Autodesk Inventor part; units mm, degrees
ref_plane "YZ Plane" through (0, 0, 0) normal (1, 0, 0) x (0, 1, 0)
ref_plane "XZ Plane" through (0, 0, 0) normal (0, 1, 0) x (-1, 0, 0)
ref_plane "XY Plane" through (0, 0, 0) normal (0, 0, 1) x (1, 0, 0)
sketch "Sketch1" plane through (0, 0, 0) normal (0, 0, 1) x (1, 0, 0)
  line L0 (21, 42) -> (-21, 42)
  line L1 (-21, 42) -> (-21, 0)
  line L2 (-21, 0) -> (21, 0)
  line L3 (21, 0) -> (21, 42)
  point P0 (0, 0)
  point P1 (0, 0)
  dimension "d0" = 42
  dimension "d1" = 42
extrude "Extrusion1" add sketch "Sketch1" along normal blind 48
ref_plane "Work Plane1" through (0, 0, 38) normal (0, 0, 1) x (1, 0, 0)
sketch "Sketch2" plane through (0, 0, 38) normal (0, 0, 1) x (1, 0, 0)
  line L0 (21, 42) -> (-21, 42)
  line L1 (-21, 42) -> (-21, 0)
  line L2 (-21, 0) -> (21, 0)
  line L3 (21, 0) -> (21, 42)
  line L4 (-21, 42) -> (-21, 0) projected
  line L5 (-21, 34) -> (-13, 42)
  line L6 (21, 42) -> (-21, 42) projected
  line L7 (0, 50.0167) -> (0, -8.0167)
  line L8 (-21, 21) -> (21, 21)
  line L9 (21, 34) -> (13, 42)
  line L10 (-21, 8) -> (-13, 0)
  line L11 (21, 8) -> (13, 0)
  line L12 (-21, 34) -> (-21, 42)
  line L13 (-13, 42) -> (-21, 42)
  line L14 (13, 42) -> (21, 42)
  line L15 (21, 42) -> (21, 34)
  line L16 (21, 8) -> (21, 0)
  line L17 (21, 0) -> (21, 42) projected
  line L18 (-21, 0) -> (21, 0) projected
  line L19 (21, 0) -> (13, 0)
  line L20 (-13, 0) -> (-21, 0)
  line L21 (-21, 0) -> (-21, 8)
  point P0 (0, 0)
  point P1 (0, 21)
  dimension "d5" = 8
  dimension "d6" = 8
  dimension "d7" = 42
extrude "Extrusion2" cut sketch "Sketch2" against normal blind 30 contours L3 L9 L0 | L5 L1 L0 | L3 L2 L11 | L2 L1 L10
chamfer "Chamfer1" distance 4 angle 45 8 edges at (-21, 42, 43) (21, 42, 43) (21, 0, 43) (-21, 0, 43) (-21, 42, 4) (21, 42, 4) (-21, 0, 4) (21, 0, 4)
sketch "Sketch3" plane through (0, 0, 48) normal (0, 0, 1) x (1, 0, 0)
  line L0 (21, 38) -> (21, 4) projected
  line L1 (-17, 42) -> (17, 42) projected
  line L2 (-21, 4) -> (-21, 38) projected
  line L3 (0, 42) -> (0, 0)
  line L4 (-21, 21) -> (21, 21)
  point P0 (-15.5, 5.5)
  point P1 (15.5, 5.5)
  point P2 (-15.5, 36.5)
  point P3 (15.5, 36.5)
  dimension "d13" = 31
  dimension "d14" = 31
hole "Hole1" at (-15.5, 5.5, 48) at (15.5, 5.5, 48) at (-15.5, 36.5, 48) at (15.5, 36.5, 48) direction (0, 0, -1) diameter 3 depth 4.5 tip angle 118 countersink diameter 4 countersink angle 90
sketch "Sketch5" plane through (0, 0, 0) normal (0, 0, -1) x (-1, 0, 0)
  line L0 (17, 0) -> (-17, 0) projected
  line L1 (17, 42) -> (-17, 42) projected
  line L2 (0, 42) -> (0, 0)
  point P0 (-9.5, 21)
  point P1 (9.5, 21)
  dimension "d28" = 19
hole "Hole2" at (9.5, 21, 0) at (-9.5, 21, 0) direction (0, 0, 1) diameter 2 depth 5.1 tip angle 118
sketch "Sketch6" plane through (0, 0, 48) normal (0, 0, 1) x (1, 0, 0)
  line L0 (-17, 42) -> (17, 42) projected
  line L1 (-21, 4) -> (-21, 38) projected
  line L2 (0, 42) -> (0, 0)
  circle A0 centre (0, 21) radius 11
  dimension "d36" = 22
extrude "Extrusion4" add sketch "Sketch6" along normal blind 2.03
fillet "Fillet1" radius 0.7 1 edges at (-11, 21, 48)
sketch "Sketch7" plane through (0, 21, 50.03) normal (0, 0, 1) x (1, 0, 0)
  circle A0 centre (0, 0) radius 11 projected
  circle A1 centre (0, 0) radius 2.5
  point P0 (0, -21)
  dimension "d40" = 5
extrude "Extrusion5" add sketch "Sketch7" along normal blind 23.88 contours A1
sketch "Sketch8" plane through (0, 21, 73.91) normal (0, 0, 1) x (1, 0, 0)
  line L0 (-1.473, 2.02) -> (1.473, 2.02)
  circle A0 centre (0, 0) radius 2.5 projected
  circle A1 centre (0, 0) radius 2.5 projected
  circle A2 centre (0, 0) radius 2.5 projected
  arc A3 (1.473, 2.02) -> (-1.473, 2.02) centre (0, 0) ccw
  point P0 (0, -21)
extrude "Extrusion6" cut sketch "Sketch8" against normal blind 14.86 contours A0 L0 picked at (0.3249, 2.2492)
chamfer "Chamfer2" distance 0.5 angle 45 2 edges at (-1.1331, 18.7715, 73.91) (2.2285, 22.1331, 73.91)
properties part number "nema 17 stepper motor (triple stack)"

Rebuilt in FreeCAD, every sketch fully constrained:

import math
import FreeCAD as App
import Part
import Sketcher


def edges_at(feature, points):
    """Names of the edges that pass closest to the given points."""
    edges = feature.Shape.Edges
    near = lambda p: min(range(len(edges)), key=lambda i: edges[i].distToShape(Part.Vertex(*p))[0])
    return sorted({f"Edge{near(p) + 1}" for p in points})

doc = App.newDocument("Part")
body = doc.addObject("PartDesign::Body", "Body")

sketch1 = doc.addObject("Sketcher::SketchObject", "Sketch")
body.addObject(sketch1)
sketch1.AttachmentSupport = (doc.XY_Plane, [""])
sketch1.MapMode = "FlatFace"
sketch1.addGeometry([
    Part.LineSegment(App.Vector(21, 0, 0), App.Vector(21, 42, 0)),
    Part.LineSegment(App.Vector(21, 42, 0), App.Vector(-21, 42, 0)),
    Part.LineSegment(App.Vector(-21, 42, 0), App.Vector(-21, 0, 0)),
    Part.LineSegment(App.Vector(-21, 0, 0), App.Vector(21, 0, 0)),
], False)
sketch1.addConstraint([
    Sketcher.Constraint("Coincident", 0, 2, 1, 1),
    Sketcher.Constraint("Coincident", 1, 2, 2, 1),
    Sketcher.Constraint("Coincident", 2, 2, 3, 1),
    Sketcher.Constraint("Coincident", 3, 2, 0, 1),
    Sketcher.Constraint("Vertical", 0),
    Sketcher.Constraint("Horizontal", 1),
    Sketcher.Constraint("Vertical", 2),
    Sketcher.Constraint("Horizontal", 3),
    Sketcher.Constraint("Symmetric", 2, 2, 3, 2, -1, 1),
    Sketcher.Constraint("Equal", 3, 0),
    Sketcher.Constraint("DistanceX", 1, 2, 1, 1, 42.0),
])
pad1 = doc.addObject("PartDesign::Pad", "Pad")
body.addObject(pad1)
pad1.Profile = sketch1
pad1.Length = 48

sketch2 = doc.addObject("Sketcher::SketchObject", "Sketch001")
body.addObject(sketch2)
sketch2.AttachmentSupport = (doc.XY_Plane, [""])
sketch2.MapMode = "FlatFace"
sketch2.AttachmentOffset = App.Placement(App.Vector(0, 0, 38), App.Rotation())
sketch2.addGeometry([
    Part.LineSegment(App.Vector(21, 34, 0), App.Vector(21, 42, 0)),
    Part.LineSegment(App.Vector(21, 42, 0), App.Vector(13, 42, 0)),
    Part.LineSegment(App.Vector(13, 42, 0), App.Vector(21, 34, 0)),
    Part.LineSegment(App.Vector(-21, 34, 0), App.Vector(-13, 42, 0)),
    Part.LineSegment(App.Vector(-13, 42, 0), App.Vector(-21, 42, 0)),
    Part.LineSegment(App.Vector(-21, 42, 0), App.Vector(-21, 34, 0)),
    Part.LineSegment(App.Vector(21, 0, 0), App.Vector(21, 8, 0)),
    Part.LineSegment(App.Vector(21, 8, 0), App.Vector(13, 0, 0)),
    Part.LineSegment(App.Vector(13, 0, 0), App.Vector(21, 0, 0)),
    Part.LineSegment(App.Vector(-21, 0, 0), App.Vector(-13, 0, 0)),
    Part.LineSegment(App.Vector(-13, 0, 0), App.Vector(-21, 8, 0)),
    Part.LineSegment(App.Vector(-21, 8, 0), App.Vector(-21, 0, 0)),
], False)
sketch2.addConstraint([
    Sketcher.Constraint("Coincident", 0, 2, 1, 1),
    Sketcher.Constraint("Coincident", 1, 2, 2, 1),
    Sketcher.Constraint("Coincident", 2, 2, 0, 1),
    Sketcher.Constraint("Coincident", 3, 2, 4, 1),
    Sketcher.Constraint("Coincident", 4, 2, 5, 1),
    Sketcher.Constraint("Coincident", 5, 2, 3, 1),
    Sketcher.Constraint("Coincident", 6, 2, 7, 1),
    Sketcher.Constraint("Coincident", 7, 2, 8, 1),
    Sketcher.Constraint("Coincident", 8, 2, 6, 1),
    Sketcher.Constraint("Coincident", 9, 2, 10, 1),
    Sketcher.Constraint("Coincident", 10, 2, 11, 1),
    Sketcher.Constraint("Coincident", 11, 2, 9, 1),
    Sketcher.Constraint("Vertical", 0),
    Sketcher.Constraint("Horizontal", 1),
    Sketcher.Constraint("Horizontal", 4),
    Sketcher.Constraint("Vertical", 5),
    Sketcher.Constraint("Vertical", 6),
    Sketcher.Constraint("Horizontal", 8),
    Sketcher.Constraint("Horizontal", 9),
    Sketcher.Constraint("Vertical", 11),
    Sketcher.Constraint("Symmetric", 7, 2, 9, 2, -1, 1),
    Sketcher.Constraint("Symmetric", 1, 2, 3, 2, -2),
    Sketcher.Constraint("Symmetric", 2, 2, 5, 2, -2),
    Sketcher.Constraint("Symmetric", 6, 2, 10, 2, -2),
    Sketcher.Constraint("PointOnObject", 7, 2, -1),
    Sketcher.Constraint("Perpendicular", 2, 3),
    Sketcher.Constraint("Parallel", 3, 7),
    Sketcher.Constraint("Vertical", 2, 2, 6, 2),
    Sketcher.Constraint("Vertical", 1, 2, 7, 2),
    Sketcher.Constraint("DistanceX", 1, 2, 1, 1, 8.0),
    Sketcher.Constraint("DistanceY", -1, 1, 0, 2, 42.0),
    Sketcher.Constraint("DistanceX", 4, 2, 0, 2, 42.0),
])
pocket1 = doc.addObject("PartDesign::Pocket", "Pocket")
body.addObject(pocket1)
pocket1.Profile = sketch2
pocket1.Length = 30
doc.recompute()

chamfer = doc.addObject("PartDesign::Chamfer", "Chamfer")
body.addObject(chamfer)
chamfer.Base = (pocket1, edges_at(pocket1, [
    (-21, 42, 43),
    (21, 42, 43),
    (21, 0, 43),
    (-21, 0, 43),
    (-21, 42, 4),
    (21, 42, 4),
    (-21, 0, 4),
    (21, 0, 4),
]))
chamfer.Size = 4

sketch3 = doc.addObject("Sketcher::SketchObject", "Sketch002")
body.addObject(sketch3)
sketch3.AttachmentSupport = (doc.XY_Plane, [""])
sketch3.MapMode = "FlatFace"
sketch3.AttachmentOffset = App.Placement(App.Vector(0, 0, 48), App.Rotation())
sketch3.addGeometry([
    Part.Circle(App.Vector(-15.5, 5.5, 0), App.Vector(0, 0, 1), 1.5),
    Part.Circle(App.Vector(15.5, 5.5, 0), App.Vector(0, 0, 1), 1.5),
    Part.Circle(App.Vector(-15.5, 36.5, 0), App.Vector(0, 0, 1), 1.5),
    Part.Circle(App.Vector(15.5, 36.5, 0), App.Vector(0, 0, 1), 1.5),
], False)
sketch3.addConstraint([
    Sketcher.Constraint("Equal", 0, 1),
    Sketcher.Constraint("Equal", 1, 2),
    Sketcher.Constraint("Equal", 2, 3),
    Sketcher.Constraint("Symmetric", 0, 3, 1, 3, -2),
    Sketcher.Constraint("Symmetric", 2, 3, 3, 3, -2),
    Sketcher.Constraint("Vertical", 0, 3, 2, 3),
    Sketcher.Constraint("Diameter", 0, 3.0),
    Sketcher.Constraint("DistanceX", 0, 3, 1, 3, 31.0),
    Sketcher.Constraint("DistanceY", 0, 3, 2, 3, 31.0),
    Sketcher.Constraint("DistanceY", -1, 1, 0, 3, 5.5),
])
doc.recompute()
hole = doc.addObject("PartDesign::Hole", "Hole")
body.addObject(hole)
hole.Profile = sketch3
hole.ThreadType = "None"
hole.Diameter = 3
hole.DepthType = "Dimension"
hole.Depth = 4.5
hole.DrillPoint = "Angled"
hole.DrillPointAngle = 118
hole.HoleCutType = "Countersink"
hole.HoleCutDiameter = 4
hole.HoleCutCountersinkAngle = 90

sketch4 = doc.addObject("Sketcher::SketchObject", "Sketch003")
body.addObject(sketch4)
sketch4.AttachmentSupport = (doc.XY_Plane, [""])
sketch4.MapMode = "FlatFace"
sketch4.addGeometry([
    Part.Circle(App.Vector(9.5, 21, 0), App.Vector(0, 0, 1), 1),
    Part.Circle(App.Vector(-9.5, 21, 0), App.Vector(0, 0, 1), 1),
], False)
sketch4.addConstraint([
    Sketcher.Constraint("Equal", 0, 1),
    Sketcher.Constraint("Symmetric", 0, 3, 1, 3, -2),
    Sketcher.Constraint("Diameter", 0, 2.0),
    Sketcher.Constraint("DistanceY", -1, 1, 0, 3, 21.0),
    Sketcher.Constraint("DistanceX", 1, 3, 0, 3, 19.0),
])
doc.recompute()
hole2 = doc.addObject("PartDesign::Hole", "Hole001")
body.addObject(hole2)
hole2.Profile = sketch4
hole2.ThreadType = "None"
hole2.Diameter = 2
hole2.DepthType = "Dimension"
hole2.Depth = 5.1
hole2.DrillPoint = "Angled"
hole2.DrillPointAngle = 118
hole2.Reversed = True

sketch5 = doc.addObject("Sketcher::SketchObject", "Sketch004")
body.addObject(sketch5)
sketch5.AttachmentSupport = (doc.XY_Plane, [""])
sketch5.MapMode = "FlatFace"
sketch5.AttachmentOffset = App.Placement(App.Vector(0, 0, 48), App.Rotation())
sketch5.addGeometry(Part.Circle(App.Vector(0, 21, 0), App.Vector(0, 0, 1), 11), False)
sketch5.addConstraint([
    Sketcher.Constraint("PointOnObject", 0, 3, -2),
    Sketcher.Constraint("Diameter", 0, 22.0),
    Sketcher.Constraint("DistanceY", -1, 1, 0, 3, 21.0),
])
pad2 = doc.addObject("PartDesign::Pad", "Pad001")
body.addObject(pad2)
pad2.Profile = sketch5
pad2.Length = 2.03
doc.recompute()

fillet = doc.addObject("PartDesign::Fillet", "Fillet")
body.addObject(fillet)
fillet.Base = (pad2, edges_at(pad2, [(-11, 21, 48)]))
fillet.Radius = 0.7

sketch6 = doc.addObject("Sketcher::SketchObject", "Sketch005")
body.addObject(sketch6)
sketch6.AttachmentSupport = (doc.XY_Plane, [""])
sketch6.MapMode = "FlatFace"
sketch6.AttachmentOffset = App.Placement(App.Vector(0, 0, 50.03), App.Rotation())
sketch6.addGeometry(Part.Circle(App.Vector(0, 21, 0), App.Vector(0, 0, 1), 2.5), False)
sketch6.addConstraint([
    Sketcher.Constraint("PointOnObject", 0, 3, -2),
    Sketcher.Constraint("Diameter", 0, 5.0),
    Sketcher.Constraint("DistanceY", -1, 1, 0, 3, 21.0),
])
pad3 = doc.addObject("PartDesign::Pad", "Pad002")
body.addObject(pad3)
pad3.Profile = sketch6
pad3.Length = 23.88

sketch7 = doc.addObject("Sketcher::SketchObject", "Sketch006")
body.addObject(sketch7)
sketch7.AttachmentSupport = (doc.XY_Plane, [""])
sketch7.MapMode = "FlatFace"
sketch7.AttachmentOffset = App.Placement(App.Vector(0, 0, 73.91), App.Rotation())
sketch7.addGeometry([
    Part.ArcOfCircle(Part.Circle(App.Vector(0, 21, 0), App.Vector(0, 0, 1), 2.5), math.radians(54), math.radians(126)),
    Part.LineSegment(App.Vector(1.5, 23, 0), App.Vector(-1.5, 23, 0)),
], False)
sketch7.addConstraint([
    Sketcher.Constraint("Coincident", 0, 1, 1, 1),
    Sketcher.Constraint("Coincident", 1, 2, 0, 2),
    Sketcher.Constraint("Horizontal", 1),
    Sketcher.Constraint("PointOnObject", 0, 3, -2),
    Sketcher.Constraint("Radius", 0, 2.5),
    Sketcher.Constraint("DistanceY", -1, 1, 0, 3, 21.0),
    Sketcher.Constraint("DistanceX", 1, 2, 1, 1, 2.946),
])
pocket2 = doc.addObject("PartDesign::Pocket", "Pocket001")
body.addObject(pocket2)
pocket2.Profile = sketch7
pocket2.Length = 14.86
doc.recompute()

chamfer2 = doc.addObject("PartDesign::Chamfer", "Chamfer001")
body.addObject(chamfer2)
chamfer2.Base = (pocket2, edges_at(pocket2, [(-1.133, 18.771, 73.91), (2.228, 22.133, 73.91)]))
chamfer2.Size = 0.5

doc.recompute()
